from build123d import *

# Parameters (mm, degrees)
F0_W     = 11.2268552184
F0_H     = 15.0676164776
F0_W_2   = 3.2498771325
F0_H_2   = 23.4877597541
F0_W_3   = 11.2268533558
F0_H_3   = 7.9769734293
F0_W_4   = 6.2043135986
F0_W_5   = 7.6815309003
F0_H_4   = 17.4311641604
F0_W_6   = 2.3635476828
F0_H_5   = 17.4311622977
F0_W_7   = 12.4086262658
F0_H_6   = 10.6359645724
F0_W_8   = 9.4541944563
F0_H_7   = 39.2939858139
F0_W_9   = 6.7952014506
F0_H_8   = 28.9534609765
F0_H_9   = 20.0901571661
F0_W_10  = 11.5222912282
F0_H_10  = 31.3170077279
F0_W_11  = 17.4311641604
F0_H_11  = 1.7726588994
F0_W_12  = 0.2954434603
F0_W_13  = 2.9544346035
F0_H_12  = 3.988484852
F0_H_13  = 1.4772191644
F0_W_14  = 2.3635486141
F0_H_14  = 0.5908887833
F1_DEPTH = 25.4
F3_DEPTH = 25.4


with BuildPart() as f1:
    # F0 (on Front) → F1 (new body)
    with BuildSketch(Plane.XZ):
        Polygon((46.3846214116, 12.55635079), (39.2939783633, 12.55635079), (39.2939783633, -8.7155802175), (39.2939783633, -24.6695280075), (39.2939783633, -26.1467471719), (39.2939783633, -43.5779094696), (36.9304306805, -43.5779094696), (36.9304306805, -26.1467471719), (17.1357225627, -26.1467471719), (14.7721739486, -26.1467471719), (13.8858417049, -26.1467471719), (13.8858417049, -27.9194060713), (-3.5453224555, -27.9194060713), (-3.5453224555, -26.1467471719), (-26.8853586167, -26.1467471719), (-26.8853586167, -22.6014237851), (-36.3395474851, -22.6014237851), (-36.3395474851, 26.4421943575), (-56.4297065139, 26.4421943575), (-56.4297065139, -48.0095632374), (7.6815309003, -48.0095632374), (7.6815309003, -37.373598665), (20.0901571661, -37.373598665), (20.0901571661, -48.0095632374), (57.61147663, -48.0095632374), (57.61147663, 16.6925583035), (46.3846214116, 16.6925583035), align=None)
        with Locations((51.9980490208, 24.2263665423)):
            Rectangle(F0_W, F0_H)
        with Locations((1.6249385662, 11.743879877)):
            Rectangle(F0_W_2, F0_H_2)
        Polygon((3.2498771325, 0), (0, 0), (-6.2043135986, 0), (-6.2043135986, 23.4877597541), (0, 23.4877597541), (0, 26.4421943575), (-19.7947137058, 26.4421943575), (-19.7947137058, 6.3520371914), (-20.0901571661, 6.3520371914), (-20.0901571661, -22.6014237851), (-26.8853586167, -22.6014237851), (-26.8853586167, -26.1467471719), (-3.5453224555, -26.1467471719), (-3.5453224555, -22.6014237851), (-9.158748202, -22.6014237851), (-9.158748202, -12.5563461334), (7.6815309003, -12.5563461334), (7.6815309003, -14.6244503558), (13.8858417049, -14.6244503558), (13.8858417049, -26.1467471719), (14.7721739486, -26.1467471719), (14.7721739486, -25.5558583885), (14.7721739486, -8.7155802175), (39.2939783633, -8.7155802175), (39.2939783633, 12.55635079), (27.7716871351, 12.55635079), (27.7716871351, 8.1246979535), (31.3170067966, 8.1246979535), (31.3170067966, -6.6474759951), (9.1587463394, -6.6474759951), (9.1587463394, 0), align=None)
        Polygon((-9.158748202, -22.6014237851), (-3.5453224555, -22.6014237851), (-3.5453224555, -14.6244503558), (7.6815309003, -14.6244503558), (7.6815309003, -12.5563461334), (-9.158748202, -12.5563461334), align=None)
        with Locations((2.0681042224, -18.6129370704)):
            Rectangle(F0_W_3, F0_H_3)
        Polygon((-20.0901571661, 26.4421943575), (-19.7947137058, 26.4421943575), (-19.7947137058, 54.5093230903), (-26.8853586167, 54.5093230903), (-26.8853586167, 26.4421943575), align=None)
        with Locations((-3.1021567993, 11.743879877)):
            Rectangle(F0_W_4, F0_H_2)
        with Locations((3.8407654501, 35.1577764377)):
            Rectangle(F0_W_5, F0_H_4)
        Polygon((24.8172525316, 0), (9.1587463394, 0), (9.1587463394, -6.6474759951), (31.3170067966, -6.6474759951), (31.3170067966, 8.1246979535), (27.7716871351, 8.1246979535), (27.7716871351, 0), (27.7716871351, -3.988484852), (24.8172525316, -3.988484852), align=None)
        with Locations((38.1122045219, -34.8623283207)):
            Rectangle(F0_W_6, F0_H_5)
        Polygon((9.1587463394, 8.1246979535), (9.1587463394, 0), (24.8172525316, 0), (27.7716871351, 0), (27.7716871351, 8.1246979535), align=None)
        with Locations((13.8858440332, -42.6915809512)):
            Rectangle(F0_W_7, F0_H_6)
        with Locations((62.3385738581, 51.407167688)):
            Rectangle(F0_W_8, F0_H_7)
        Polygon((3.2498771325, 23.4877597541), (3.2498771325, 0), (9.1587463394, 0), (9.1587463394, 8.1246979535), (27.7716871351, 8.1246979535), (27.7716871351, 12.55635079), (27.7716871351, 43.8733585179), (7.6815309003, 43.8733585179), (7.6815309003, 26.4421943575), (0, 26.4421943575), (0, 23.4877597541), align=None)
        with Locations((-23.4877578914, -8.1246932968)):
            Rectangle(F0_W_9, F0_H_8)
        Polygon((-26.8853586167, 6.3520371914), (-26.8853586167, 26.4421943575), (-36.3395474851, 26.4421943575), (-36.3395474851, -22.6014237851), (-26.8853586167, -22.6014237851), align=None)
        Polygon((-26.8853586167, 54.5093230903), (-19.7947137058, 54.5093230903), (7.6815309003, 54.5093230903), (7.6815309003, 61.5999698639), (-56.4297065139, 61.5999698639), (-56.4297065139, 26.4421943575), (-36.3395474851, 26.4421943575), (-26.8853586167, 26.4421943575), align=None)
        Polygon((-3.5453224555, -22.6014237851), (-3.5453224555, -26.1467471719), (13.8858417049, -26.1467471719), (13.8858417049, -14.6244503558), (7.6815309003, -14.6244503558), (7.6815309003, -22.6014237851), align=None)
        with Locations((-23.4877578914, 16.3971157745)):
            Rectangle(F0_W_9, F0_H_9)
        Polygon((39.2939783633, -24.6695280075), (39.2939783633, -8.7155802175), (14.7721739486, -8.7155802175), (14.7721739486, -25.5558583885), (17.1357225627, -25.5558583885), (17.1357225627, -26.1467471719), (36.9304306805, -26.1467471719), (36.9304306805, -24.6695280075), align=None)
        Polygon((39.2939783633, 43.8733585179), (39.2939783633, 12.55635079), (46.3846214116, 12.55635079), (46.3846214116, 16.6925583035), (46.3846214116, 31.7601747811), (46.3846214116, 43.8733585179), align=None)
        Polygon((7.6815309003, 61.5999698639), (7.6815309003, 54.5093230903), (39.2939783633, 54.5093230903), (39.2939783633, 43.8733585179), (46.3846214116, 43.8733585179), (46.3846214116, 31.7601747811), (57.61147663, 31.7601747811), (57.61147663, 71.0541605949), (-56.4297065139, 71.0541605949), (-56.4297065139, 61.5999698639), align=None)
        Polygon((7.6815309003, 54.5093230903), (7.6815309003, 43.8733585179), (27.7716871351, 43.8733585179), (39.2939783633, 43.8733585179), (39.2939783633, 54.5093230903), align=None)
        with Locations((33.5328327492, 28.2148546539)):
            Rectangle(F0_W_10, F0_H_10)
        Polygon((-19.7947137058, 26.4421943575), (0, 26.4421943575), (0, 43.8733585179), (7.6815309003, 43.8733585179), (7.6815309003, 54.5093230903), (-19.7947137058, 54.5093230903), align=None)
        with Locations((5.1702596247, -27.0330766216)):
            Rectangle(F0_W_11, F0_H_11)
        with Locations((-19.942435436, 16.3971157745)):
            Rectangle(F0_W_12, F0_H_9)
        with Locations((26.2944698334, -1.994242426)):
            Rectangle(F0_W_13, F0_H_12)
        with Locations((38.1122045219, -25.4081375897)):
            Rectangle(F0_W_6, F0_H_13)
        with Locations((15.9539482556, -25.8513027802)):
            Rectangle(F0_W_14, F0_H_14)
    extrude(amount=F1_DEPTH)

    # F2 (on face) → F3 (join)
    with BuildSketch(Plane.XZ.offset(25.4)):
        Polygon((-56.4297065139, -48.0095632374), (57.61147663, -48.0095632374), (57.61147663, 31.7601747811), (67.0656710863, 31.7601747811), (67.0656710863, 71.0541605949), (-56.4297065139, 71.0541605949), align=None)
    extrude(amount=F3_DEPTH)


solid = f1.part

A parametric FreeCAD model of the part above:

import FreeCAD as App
import Part
import Sketcher
Q = App.Units.Quantity

doc = App.newDocument("Part")
body = doc.addObject("PartDesign::Body", "Body")

# Sketch on XZ plane
sketch1 = body.newObject("Sketcher::SketchObject", "Sketch")
sketch1.AttachmentSupport = (doc.getObject("XZ_Plane"), [""])
sketch1.MapMode = "FlatFace"
sketch1.addGeometry(Part.LineSegment(App.Vector(58, -48, 0), App.Vector(58, 32, 0)), False)
sketch1.addGeometry(Part.LineSegment(App.Vector(58, 32, 0), App.Vector(67, 32, 0)), False)
sketch1.addGeometry(Part.LineSegment(App.Vector(67, 32, 0), App.Vector(67, 71, 0)), False)
sketch1.addGeometry(Part.LineSegment(App.Vector(67, 71, 0), App.Vector(-56, 71, 0)), False)
sketch1.addGeometry(Part.LineSegment(App.Vector(-56, 71, 0), App.Vector(-56, -48, 0)), False)
sketch1.addGeometry(Part.LineSegment(App.Vector(-56, -48, 0), App.Vector(58, -48, 0)), False)
sketch1.addConstraint(Sketcher.Constraint("Coincident", 0, 2, 1, 1))
sketch1.addConstraint(Sketcher.Constraint("Coincident", 1, 2, 2, 1))
sketch1.addConstraint(Sketcher.Constraint("Coincident", 2, 2, 3, 1))
sketch1.addConstraint(Sketcher.Constraint("Coincident", 3, 2, 4, 1))
sketch1.addConstraint(Sketcher.Constraint("Coincident", 4, 2, 5, 1))
sketch1.addConstraint(Sketcher.Constraint("Coincident", 5, 2, 0, 1))
sketch1.addConstraint(Sketcher.Constraint("Vertical", 0))
sketch1.addConstraint(Sketcher.Constraint("Horizontal", 1))
sketch1.addConstraint(Sketcher.Constraint("Vertical", 2))
sketch1.addConstraint(Sketcher.Constraint("Horizontal", 3))
sketch1.addConstraint(Sketcher.Constraint("Vertical", 4))
sketch1.addConstraint(Sketcher.Constraint("Horizontal", 5))
sketch1.addConstraint(Sketcher.Constraint("DistanceY", 0, 1, 0, 2, Q("79.769738 mm")))
sketch1.addConstraint(Sketcher.Constraint("DistanceX", 1, 1, 1, 2, Q("9.454194 mm")))
sketch1.addConstraint(Sketcher.Constraint("DistanceX", 3, 2, 3, 1, Q("123.495378 mm")))
sketch1.addConstraint(Sketcher.Constraint("DistanceY", 2, 1, 2, 2, Q("39.293986 mm")))
sketch1.addConstraint(Sketcher.Constraint("DistanceX", -1, 1, 1, 2, Q("67.065671 mm")))
sketch1.addConstraint(Sketcher.Constraint("DistanceY", -1, 1, 2, 2, Q("71.054161 mm")))
pad1 = body.newObject("PartDesign::Pad", "Pad")
pad1.Profile = sketch1
pad1.Length = Q("1 in")

# Sketch on XZ plane
sketch2 = body.newObject("Sketcher::SketchObject", "Sketch001")
sketch2.AttachmentSupport = (doc.getObject("XZ_Plane"), [""])
sketch2.MapMode = "FlatFace"
sketch2.AttachmentOffset = App.Placement(App.Vector(0, 0, 1 * 25.4), App.Rotation())
sketch2.addGeometry(Part.LineSegment(App.Vector(-56, -48, 0), App.Vector(58, -48, 0)), False)
sketch2.addGeometry(Part.LineSegment(App.Vector(58, -48, 0), App.Vector(58, 32, 0)), False)
sketch2.addGeometry(Part.LineSegment(App.Vector(58, 32, 0), App.Vector(67, 32, 0)), False)
sketch2.addGeometry(Part.LineSegment(App.Vector(67, 32, 0), App.Vector(67, 71, 0)), False)
sketch2.addGeometry(Part.LineSegment(App.Vector(67, 71, 0), App.Vector(-56, 71, 0)), False)
sketch2.addGeometry(Part.LineSegment(App.Vector(-56, 71, 0), App.Vector(-56, -48, 0)), False)
sketch2.addConstraint(Sketcher.Constraint("Coincident", 0, 2, 1, 1))
sketch2.addConstraint(Sketcher.Constraint("Coincident", 1, 2, 2, 1))
sketch2.addConstraint(Sketcher.Constraint("Coincident", 2, 2, 3, 1))
sketch2.addConstraint(Sketcher.Constraint("Coincident", 3, 2, 4, 1))
sketch2.addConstraint(Sketcher.Constraint("Coincident", 4, 2, 5, 1))
sketch2.addConstraint(Sketcher.Constraint("Coincident", 5, 2, 0, 1))
sketch2.addConstraint(Sketcher.Constraint("Horizontal", 0))
sketch2.addConstraint(Sketcher.Constraint("Vertical", 1))
sketch2.addConstraint(Sketcher.Constraint("Horizontal", 2))
sketch2.addConstraint(Sketcher.Constraint("Vertical", 3))
sketch2.addConstraint(Sketcher.Constraint("Horizontal", 4))
sketch2.addConstraint(Sketcher.Constraint("Vertical", 5))
sketch2.addConstraint(Sketcher.Constraint("DistanceY", 1, 1, 1, 2, Q("79.769738 mm")))
sketch2.addConstraint(Sketcher.Constraint("DistanceX", 0, 1, 0, 2, Q("114.041183 mm")))
sketch2.addConstraint(Sketcher.Constraint("DistanceX", 2, 1, 2, 2, Q("9.454194 mm")))
sketch2.addConstraint(Sketcher.Constraint("DistanceY", 3, 1, 3, 2, Q("39.293986 mm")))
sketch2.addConstraint(Sketcher.Constraint("DistanceX", -1, 1, 2, 2, Q("67.065671 mm")))
sketch2.addConstraint(Sketcher.Constraint("DistanceY", -1, 1, 3, 2, Q("71.054161 mm")))
pad2 = body.newObject("PartDesign::Pad", "Pad001")
pad2.Profile = sketch2
pad2.Length = Q("1 in")

doc.recompute()
